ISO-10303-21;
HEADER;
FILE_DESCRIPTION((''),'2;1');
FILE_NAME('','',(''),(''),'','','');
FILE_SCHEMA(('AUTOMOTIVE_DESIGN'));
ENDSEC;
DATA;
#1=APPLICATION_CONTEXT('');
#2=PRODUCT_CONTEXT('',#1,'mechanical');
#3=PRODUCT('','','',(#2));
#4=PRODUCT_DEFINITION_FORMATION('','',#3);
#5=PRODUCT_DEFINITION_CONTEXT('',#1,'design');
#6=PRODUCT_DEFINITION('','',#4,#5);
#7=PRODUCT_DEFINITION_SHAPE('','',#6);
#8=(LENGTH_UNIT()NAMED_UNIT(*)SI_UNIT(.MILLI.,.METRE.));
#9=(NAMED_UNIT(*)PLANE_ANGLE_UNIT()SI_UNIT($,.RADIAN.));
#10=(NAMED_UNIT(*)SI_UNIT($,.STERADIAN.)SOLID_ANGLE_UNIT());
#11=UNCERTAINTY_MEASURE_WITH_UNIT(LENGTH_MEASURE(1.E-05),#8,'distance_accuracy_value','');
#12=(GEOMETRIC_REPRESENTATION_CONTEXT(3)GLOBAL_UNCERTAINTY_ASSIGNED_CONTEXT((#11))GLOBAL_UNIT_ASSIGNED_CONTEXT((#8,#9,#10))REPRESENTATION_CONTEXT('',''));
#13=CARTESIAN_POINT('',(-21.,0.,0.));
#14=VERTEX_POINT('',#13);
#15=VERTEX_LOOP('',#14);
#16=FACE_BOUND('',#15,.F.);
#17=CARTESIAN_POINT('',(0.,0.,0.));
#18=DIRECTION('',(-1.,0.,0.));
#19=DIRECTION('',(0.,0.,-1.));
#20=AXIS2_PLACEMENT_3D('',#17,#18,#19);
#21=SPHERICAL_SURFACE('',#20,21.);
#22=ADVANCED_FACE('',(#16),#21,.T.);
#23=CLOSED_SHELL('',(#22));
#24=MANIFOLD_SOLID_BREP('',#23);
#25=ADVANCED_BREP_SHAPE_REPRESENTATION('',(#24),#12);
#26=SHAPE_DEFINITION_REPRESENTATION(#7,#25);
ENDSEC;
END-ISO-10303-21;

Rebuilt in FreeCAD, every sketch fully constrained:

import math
import FreeCAD as App
import Part
import Sketcher
from FreeCAD import Vector

doc = App.newDocument("Part")
params = doc.addObject("Spreadsheet::Sheet", "Params")
for row, (alias, value) in enumerate([
    ("sketch1_radius", "21 mm"),
    ("revolution_angle", "360 deg"),
], start=1):
    params.set(f"A{row}", alias)
    params.set(f"B{row}", "=" + value)
    params.setAlias(f"B{row}", alias)

body = doc.addObject("PartDesign::Body", "Body")

# Sketch on XZ plane
sketch1 = body.newObject("Sketcher::SketchObject", "Sketch")
sketch1.AttachmentSupport = (doc.getObject("XZ_Plane"), [""])
sketch1.MapMode = "FlatFace"
sketch1.addGeometry(Part.ArcOfCircle(Part.Circle(Vector(0, 0, 0), Vector(0, 0, 1), 21), math.radians(180), math.radians(360)), False)
sketch1.addGeometry(Part.LineSegment(Vector(-21, 0, 0), Vector(21, 0, 0)), False)
sketch1.addConstraint(Sketcher.Constraint("Coincident", 0, 1, 1, 1))
sketch1.addConstraint(Sketcher.Constraint("Coincident", 1, 2, 0, 2))
sketch1.addConstraint(Sketcher.Constraint("Horizontal", 1))
sketch1.addConstraint(Sketcher.Constraint("Coincident", 0, 3, -1, 1))
sketch1.addConstraint(Sketcher.Constraint("PointOnObject", 0, 1, -1))
sketch1.addConstraint(Sketcher.Constraint("Radius", 0, 21.0))
sketch1.setExpression("Constraints[5]", "Params.sketch1_radius")
revolution = body.newObject("PartDesign::Revolution", "Revolution")
revolution.Profile = sketch1
revolution.ReferenceAxis = (sketch1, ["H_Axis"])
revolution.setExpression("Angle", "Params.revolution_angle")

doc.recompute()
